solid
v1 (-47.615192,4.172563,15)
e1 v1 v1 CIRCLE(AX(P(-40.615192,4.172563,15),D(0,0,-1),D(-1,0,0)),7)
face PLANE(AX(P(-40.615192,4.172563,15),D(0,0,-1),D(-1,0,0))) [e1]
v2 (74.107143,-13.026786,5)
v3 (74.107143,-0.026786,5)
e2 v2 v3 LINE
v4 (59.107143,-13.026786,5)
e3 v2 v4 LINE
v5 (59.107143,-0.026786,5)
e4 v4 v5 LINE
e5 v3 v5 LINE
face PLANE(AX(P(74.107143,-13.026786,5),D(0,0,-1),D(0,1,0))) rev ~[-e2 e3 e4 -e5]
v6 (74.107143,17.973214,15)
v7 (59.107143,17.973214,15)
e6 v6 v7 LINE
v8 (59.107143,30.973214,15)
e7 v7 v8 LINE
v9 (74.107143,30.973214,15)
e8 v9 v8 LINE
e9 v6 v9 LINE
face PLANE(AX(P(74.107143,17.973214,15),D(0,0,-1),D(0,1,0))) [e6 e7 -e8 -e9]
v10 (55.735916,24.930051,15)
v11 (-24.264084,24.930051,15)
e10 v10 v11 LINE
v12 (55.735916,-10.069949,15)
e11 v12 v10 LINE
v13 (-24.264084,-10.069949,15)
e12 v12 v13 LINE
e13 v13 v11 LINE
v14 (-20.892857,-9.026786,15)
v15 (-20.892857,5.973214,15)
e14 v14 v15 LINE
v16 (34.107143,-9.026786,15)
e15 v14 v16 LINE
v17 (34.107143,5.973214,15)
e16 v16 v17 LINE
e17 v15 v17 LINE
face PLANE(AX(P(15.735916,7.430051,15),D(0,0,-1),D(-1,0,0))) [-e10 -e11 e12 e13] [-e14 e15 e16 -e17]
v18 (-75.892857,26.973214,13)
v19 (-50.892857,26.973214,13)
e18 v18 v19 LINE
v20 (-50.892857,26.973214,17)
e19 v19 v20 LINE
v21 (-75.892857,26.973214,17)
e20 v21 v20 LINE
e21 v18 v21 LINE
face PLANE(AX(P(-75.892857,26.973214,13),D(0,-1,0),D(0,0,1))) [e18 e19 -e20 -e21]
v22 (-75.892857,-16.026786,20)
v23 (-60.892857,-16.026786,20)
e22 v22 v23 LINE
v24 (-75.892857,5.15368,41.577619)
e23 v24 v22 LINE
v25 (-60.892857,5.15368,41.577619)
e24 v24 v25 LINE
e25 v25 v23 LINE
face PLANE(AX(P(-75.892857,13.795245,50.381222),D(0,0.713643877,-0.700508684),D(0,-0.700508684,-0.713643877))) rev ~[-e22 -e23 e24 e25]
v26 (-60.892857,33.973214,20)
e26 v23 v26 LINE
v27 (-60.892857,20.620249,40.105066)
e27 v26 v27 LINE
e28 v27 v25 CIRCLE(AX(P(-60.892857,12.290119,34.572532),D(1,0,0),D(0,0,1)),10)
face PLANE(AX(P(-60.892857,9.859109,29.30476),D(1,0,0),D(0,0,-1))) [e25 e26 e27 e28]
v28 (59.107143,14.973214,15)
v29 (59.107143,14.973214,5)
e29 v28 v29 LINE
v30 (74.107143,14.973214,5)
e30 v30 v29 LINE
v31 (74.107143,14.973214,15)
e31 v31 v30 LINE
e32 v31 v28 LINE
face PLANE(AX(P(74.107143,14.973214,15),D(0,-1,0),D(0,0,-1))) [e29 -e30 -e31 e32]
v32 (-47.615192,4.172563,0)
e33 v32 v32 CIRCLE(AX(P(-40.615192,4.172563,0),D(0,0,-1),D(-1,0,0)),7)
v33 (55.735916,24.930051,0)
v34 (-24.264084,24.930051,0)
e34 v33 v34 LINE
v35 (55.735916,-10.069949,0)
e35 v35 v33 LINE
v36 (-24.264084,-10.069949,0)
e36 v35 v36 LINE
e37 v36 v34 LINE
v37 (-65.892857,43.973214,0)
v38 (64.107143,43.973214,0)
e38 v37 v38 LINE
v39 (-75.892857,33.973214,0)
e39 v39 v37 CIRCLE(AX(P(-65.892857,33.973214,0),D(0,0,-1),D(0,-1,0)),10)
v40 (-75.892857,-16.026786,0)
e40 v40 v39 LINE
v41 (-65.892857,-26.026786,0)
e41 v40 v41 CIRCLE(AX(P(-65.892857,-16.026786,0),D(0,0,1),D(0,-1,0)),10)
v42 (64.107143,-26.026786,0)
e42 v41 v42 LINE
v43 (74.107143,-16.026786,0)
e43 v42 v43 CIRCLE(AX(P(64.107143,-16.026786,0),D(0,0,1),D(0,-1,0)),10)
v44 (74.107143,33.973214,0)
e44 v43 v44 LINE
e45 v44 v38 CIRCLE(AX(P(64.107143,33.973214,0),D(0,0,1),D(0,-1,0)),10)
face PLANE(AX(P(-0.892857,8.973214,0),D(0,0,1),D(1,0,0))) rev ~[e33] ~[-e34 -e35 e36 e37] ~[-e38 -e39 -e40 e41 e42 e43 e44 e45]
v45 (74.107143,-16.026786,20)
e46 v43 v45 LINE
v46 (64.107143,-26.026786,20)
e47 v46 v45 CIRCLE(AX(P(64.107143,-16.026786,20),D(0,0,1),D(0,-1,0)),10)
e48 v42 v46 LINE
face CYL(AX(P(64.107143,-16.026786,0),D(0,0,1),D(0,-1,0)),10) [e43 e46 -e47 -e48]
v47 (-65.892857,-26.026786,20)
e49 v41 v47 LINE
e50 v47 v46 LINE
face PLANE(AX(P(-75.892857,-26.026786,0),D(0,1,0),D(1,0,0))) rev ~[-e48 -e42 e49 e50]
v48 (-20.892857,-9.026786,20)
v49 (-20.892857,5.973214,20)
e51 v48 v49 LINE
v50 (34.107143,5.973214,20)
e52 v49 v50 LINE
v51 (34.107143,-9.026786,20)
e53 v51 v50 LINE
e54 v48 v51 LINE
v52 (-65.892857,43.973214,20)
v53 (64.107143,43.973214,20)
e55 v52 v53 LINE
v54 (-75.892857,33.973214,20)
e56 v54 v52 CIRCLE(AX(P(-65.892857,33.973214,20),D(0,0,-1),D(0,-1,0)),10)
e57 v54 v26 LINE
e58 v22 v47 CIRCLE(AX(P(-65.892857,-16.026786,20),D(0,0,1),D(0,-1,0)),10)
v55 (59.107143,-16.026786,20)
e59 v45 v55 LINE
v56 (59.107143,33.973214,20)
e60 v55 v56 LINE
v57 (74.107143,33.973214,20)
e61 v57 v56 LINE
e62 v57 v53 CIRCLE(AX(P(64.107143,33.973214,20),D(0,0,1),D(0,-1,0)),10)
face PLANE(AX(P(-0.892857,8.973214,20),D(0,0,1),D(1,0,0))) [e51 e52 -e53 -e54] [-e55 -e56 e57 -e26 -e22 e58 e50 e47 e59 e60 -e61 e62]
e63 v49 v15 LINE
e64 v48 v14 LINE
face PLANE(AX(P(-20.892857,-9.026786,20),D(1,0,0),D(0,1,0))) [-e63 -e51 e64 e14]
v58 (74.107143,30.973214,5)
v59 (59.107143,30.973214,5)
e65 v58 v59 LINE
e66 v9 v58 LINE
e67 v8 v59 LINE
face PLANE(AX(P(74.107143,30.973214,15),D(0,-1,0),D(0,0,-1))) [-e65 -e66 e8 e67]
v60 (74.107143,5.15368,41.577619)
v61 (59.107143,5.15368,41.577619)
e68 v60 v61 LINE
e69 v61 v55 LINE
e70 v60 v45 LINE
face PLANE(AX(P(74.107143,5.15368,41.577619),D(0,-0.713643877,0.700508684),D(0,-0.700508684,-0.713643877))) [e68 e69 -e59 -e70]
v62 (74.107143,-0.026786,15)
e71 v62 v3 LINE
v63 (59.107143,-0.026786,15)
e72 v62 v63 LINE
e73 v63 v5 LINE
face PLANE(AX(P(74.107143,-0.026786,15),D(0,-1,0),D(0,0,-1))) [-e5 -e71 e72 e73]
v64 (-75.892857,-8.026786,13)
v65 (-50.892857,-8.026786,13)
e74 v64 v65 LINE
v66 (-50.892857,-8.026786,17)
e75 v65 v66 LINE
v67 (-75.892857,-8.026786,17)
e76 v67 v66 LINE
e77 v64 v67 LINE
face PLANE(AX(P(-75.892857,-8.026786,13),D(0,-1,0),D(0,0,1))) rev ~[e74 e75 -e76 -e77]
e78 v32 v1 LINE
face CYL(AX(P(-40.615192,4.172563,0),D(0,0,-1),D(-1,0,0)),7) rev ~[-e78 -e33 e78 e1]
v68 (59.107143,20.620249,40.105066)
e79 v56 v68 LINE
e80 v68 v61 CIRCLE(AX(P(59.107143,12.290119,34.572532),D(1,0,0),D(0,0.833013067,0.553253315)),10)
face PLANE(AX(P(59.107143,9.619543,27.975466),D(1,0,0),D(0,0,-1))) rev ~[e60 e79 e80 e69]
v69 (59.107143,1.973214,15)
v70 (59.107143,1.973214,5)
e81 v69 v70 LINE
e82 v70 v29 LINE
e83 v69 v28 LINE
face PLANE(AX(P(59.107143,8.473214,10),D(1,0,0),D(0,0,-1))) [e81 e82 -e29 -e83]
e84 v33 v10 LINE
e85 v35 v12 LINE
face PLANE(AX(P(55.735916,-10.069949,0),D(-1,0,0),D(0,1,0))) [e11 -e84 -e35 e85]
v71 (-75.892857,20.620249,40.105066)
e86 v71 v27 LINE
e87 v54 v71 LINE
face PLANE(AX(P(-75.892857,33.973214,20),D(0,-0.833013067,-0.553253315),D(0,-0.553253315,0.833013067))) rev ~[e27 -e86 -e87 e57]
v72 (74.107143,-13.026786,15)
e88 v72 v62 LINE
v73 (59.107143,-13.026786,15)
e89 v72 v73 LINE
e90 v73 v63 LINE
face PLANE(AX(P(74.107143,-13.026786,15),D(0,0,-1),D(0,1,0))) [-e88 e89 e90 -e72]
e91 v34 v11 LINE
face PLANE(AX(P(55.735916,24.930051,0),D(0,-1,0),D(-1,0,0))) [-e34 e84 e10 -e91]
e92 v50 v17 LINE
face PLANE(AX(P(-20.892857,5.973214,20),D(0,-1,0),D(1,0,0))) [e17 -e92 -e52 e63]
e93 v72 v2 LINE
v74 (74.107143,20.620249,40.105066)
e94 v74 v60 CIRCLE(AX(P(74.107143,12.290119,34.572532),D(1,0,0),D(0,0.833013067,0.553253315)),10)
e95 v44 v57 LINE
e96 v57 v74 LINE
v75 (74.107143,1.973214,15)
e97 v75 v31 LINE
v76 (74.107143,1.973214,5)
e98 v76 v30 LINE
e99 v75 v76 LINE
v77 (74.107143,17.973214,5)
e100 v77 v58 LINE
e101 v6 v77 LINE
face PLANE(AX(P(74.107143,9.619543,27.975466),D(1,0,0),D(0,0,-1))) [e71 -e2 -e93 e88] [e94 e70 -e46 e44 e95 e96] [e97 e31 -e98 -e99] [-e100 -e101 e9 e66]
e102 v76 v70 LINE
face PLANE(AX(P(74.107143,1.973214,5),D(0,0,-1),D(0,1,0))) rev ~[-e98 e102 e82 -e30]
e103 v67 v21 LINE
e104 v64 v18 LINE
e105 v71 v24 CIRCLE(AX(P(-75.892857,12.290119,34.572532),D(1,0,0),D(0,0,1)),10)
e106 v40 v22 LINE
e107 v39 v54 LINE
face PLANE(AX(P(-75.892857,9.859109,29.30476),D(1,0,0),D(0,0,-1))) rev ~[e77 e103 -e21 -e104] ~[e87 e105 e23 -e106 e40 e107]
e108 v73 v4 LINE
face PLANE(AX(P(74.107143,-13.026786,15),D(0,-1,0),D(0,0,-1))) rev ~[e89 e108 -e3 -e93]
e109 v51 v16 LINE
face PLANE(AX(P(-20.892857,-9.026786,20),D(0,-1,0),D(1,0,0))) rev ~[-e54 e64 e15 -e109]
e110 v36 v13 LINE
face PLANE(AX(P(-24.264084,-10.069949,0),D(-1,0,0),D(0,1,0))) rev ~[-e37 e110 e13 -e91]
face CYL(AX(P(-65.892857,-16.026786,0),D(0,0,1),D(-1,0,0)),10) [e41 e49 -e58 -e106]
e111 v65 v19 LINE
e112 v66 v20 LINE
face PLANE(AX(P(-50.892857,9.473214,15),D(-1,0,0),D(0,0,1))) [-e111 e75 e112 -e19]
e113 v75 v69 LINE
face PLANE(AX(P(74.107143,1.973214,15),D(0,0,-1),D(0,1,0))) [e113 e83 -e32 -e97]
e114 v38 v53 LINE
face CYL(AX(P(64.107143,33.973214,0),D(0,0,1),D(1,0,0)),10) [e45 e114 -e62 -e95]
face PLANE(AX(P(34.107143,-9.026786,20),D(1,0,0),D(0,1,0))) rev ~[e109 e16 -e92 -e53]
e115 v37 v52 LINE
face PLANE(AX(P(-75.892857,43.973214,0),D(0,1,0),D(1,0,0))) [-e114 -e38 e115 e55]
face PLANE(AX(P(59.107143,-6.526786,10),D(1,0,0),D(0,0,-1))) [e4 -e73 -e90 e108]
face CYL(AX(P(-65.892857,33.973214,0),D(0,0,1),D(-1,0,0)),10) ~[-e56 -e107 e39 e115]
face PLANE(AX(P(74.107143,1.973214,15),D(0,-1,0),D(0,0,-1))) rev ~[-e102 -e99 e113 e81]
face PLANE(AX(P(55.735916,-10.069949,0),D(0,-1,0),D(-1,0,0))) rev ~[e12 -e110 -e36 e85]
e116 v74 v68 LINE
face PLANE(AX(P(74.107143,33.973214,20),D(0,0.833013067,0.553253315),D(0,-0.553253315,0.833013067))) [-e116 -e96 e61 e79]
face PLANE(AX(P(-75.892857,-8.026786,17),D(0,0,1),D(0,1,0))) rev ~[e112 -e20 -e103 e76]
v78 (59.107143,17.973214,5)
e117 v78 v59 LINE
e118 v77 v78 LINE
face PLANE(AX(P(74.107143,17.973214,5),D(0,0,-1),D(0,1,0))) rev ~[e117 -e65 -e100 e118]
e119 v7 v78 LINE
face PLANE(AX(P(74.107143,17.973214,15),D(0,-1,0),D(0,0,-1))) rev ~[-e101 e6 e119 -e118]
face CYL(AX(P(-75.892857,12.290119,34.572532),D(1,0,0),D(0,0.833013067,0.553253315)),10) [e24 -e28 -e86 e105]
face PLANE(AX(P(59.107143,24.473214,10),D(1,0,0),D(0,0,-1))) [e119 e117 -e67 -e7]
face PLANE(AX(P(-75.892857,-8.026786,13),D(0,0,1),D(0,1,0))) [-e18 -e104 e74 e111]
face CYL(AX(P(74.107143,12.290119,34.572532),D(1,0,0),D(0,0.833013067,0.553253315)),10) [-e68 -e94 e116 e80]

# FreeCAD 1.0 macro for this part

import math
import FreeCAD as App
import Part
import Sketcher
from FreeCAD import Vector


def edges_at(feature, points):
    """Names of the edges that pass closest to the given points."""
    edges = feature.Shape.Edges
    near = lambda p: min(range(len(edges)), key=lambda i: edges[i].distToShape(Part.Vertex(*p))[0])
    return sorted({f"Edge{near(p) + 1}" for p in points})

doc = App.newDocument("Part")
body = doc.addObject("PartDesign::Body", "Body")

sketch1 = doc.addObject("Sketcher::SketchObject", "Sketch")
body.addObject(sketch1)
sketch1.AttachmentSupport = (doc.XY_Plane, [""])
sketch1.MapMode = "FlatFace"
sketch1.addGeometry(Part.LineSegment(Vector(-76, 44, 0), Vector(-76, -26, 0)), False)
sketch1.addGeometry(Part.LineSegment(Vector(-76, -26, 0), Vector(74, -26, 0)), False)
sketch1.addGeometry(Part.LineSegment(Vector(74, -26, 0), Vector(74, 44, 0)), False)
sketch1.addGeometry(Part.LineSegment(Vector(74, 44, 0), Vector(-76, 44, 0)), False)
sketch1.addConstraint(Sketcher.Constraint("Coincident", 0, 2, 1, 1))
sketch1.addConstraint(Sketcher.Constraint("Coincident", 1, 2, 2, 1))
sketch1.addConstraint(Sketcher.Constraint("Coincident", 2, 2, 3, 1))
sketch1.addConstraint(Sketcher.Constraint("Coincident", 3, 2, 0, 1))
sketch1.addConstraint(Sketcher.Constraint("Vertical", 0))
sketch1.addConstraint(Sketcher.Constraint("Horizontal", 1))
sketch1.addConstraint(Sketcher.Constraint("Vertical", 2))
sketch1.addConstraint(Sketcher.Constraint("Horizontal", 3))
sketch1.addConstraint(Sketcher.Constraint("DistanceX", 1, 1, 1, 2, 150.0))
sketch1.addConstraint(Sketcher.Constraint("DistanceY", 0, 2, 0, 1, 70.0))
sketch1.addConstraint(Sketcher.Constraint("DistanceX", 0, 2, -1, 1, 75.892857))
sketch1.addConstraint(Sketcher.Constraint("DistanceY", 0, 2, -1, 1, 26.026786))
pad1 = doc.addObject("PartDesign::Pad", "Pad")
body.addObject(pad1)
pad1.Profile = sketch1
pad1.Length = 20
doc.recompute()

fillet = doc.addObject("PartDesign::Fillet", "Fillet")
body.addObject(fillet)
fillet.Base = (pad1, edges_at(pad1, [
    (-75.893, 43.973, 10),
    (-75.893, -26.027, 10),
    (74.107, -26.027, 10),
    (74.107, 43.973, 10),
]))
fillet.Radius = 10

sketch2 = doc.addObject("Sketcher::SketchObject", "Sketch001")
body.addObject(sketch2)
sketch2.AttachmentSupport = (doc.XY_Plane, [""])
sketch2.MapMode = "FlatFace"
sketch2.addGeometry(Part.LineSegment(Vector(56, 25, 0), Vector(56, -10, 0)), False)
sketch2.addGeometry(Part.LineSegment(Vector(56, -10, 0), Vector(-24, -10, 0)), False)
sketch2.addGeometry(Part.LineSegment(Vector(-24, -10, 0), Vector(-24, 25, 0)), False)
sketch2.addGeometry(Part.LineSegment(Vector(-24, 25, 0), Vector(56, 25, 0)), False)
sketch2.addConstraint(Sketcher.Constraint("Coincident", 0, 2, 1, 1))
sketch2.addConstraint(Sketcher.Constraint("Coincident", 1, 2, 2, 1))
sketch2.addConstraint(Sketcher.Constraint("Coincident", 2, 2, 3, 1))
sketch2.addConstraint(Sketcher.Constraint("Coincident", 3, 2, 0, 1))
sketch2.addConstraint(Sketcher.Constraint("Vertical", 0))
sketch2.addConstraint(Sketcher.Constraint("Horizontal", 1))
sketch2.addConstraint(Sketcher.Constraint("Vertical", 2))
sketch2.addConstraint(Sketcher.Constraint("Horizontal", 3))
sketch2.addConstraint(Sketcher.Constraint("DistanceX", 1, 2, 1, 1, 80.0))
sketch2.addConstraint(Sketcher.Constraint("DistanceY", 0, 2, 0, 1, 35.0))
sketch2.addConstraint(Sketcher.Constraint("DistanceY", 0, 2, -1, 1, 10.069949))
sketch2.addConstraint(Sketcher.Constraint("DistanceX", -1, 1, 0, 2, 55.735916))
pocket1 = doc.addObject("PartDesign::Pocket", "Pocket")
body.addObject(pocket1)
pocket1.Profile = sketch2
pocket1.Length = 15
pocket1.Reversed = True

sketch3 = doc.addObject("Sketcher::SketchObject", "Sketch002")
body.addObject(sketch3)
sketch3.AttachmentSupport = (doc.XY_Plane, [""])
sketch3.MapMode = "FlatFace"
sketch3.addGeometry(Part.Circle(Vector(-41, 4, 0), Vector(0, 0, 1), 7), False)
sketch3.addConstraint(Sketcher.Constraint("Diameter", 0, 14.0))
sketch3.addConstraint(Sketcher.Constraint("DistanceX", 0, 3, -1, 1, 40.615192))
sketch3.addConstraint(Sketcher.Constraint("DistanceY", -1, 1, 0, 3, 4.172563))
pocket2 = doc.addObject("PartDesign::Pocket", "Pocket001")
body.addObject(pocket2)
pocket2.Profile = sketch3
pocket2.Length = 15
pocket2.Reversed = True

sketch4 = doc.addObject("Sketcher::SketchObject", "Sketch003")
body.addObject(sketch4)
sketch4.AttachmentSupport = (doc.YZ_Plane, [""])
sketch4.MapMode = "FlatFace"
sketch4.AttachmentOffset = App.Placement(Vector(0, 0, 74.107143), App.Rotation())
sketch4.addGeometry(Part.LineSegment(Vector(31, 15, 0), Vector(18, 15, 0)), False)
sketch4.addGeometry(Part.LineSegment(Vector(18, 15, 0), Vector(18, 5, 0)), False)
sketch4.addGeometry(Part.LineSegment(Vector(18, 5, 0), Vector(31, 5, 0)), False)
sketch4.addGeometry(Part.LineSegment(Vector(31, 5, 0), Vector(31, 15, 0)), False)
sketch4.addGeometry(Part.LineSegment(Vector(15, 15, 0), Vector(2, 15, 0)), False)
sketch4.addGeometry(Part.LineSegment(Vector(2, 15, 0), Vector(2, 5, 0)), False)
sketch4.addGeometry(Part.LineSegment(Vector(2, 5, 0), Vector(15, 5, 0)), False)
sketch4.addGeometry(Part.LineSegment(Vector(15, 5, 0), Vector(15, 15, 0)), False)
sketch4.addGeometry(Part.LineSegment(Vector(0, 15, 0), Vector(-13, 15, 0)), False)
sketch4.addGeometry(Part.LineSegment(Vector(-13, 15, 0), Vector(-13, 5, 0)), False)
sketch4.addGeometry(Part.LineSegment(Vector(-13, 5, 0), Vector(0, 5, 0)), False)
sketch4.addGeometry(Part.LineSegment(Vector(0, 5, 0), Vector(0, 15, 0)), False)
sketch4.addConstraint(Sketcher.Constraint("Coincident", 0, 2, 1, 1))
sketch4.addConstraint(Sketcher.Constraint("Coincident", 1, 2, 2, 1))
sketch4.addConstraint(Sketcher.Constraint("Coincident", 2, 2, 3, 1))
sketch4.addConstraint(Sketcher.Constraint("Coincident", 3, 2, 0, 1))
sketch4.addConstraint(Sketcher.Constraint("Coincident", 4, 2, 5, 1))
sketch4.addConstraint(Sketcher.Constraint("Coincident", 5, 2, 6, 1))
sketch4.addConstraint(Sketcher.Constraint("Coincident", 6, 2, 7, 1))
sketch4.addConstraint(Sketcher.Constraint("Coincident", 7, 2, 4, 1))
sketch4.addConstraint(Sketcher.Constraint("Coincident", 8, 2, 9, 1))
sketch4.addConstraint(Sketcher.Constraint("Coincident", 9, 2, 10, 1))
sketch4.addConstraint(Sketcher.Constraint("Coincident", 10, 2, 11, 1))
sketch4.addConstraint(Sketcher.Constraint("Coincident", 11, 2, 8, 1))
sketch4.addConstraint(Sketcher.Constraint("Horizontal", 0))
sketch4.addConstraint(Sketcher.Constraint("Vertical", 1))
sketch4.addConstraint(Sketcher.Constraint("Horizontal", 2))
sketch4.addConstraint(Sketcher.Constraint("Vertical", 3))
sketch4.addConstraint(Sketcher.Constraint("Horizontal", 4))
sketch4.addConstraint(Sketcher.Constraint("Vertical", 5))
sketch4.addConstraint(Sketcher.Constraint("Horizontal", 6))
sketch4.addConstraint(Sketcher.Constraint("Vertical", 7))
sketch4.addConstraint(Sketcher.Constraint("Horizontal", 8))
sketch4.addConstraint(Sketcher.Constraint("Vertical", 9))
sketch4.addConstraint(Sketcher.Constraint("Horizontal", 10))
sketch4.addConstraint(Sketcher.Constraint("Vertical", 11))
sketch4.addConstraint(Sketcher.Constraint("Horizontal", 3, 2, 4, 2))
sketch4.addConstraint(Sketcher.Constraint("Horizontal", 2, 2, 5, 2))
sketch4.addConstraint(Sketcher.Constraint("Horizontal", 7, 2, 8, 2))
sketch4.addConstraint(Sketcher.Constraint("Horizontal", 6, 2, 9, 2))
sketch4.addConstraint(Sketcher.Constraint("Equal", 2, 4))
sketch4.addConstraint(Sketcher.Constraint("Equal", 6, 8))
sketch4.addConstraint(Sketcher.Constraint("DistanceX", 0, 2, 0, 1, 13.0))
sketch4.addConstraint(Sketcher.Constraint("DistanceY", 1, 2, 1, 1, 10.0))
sketch4.addConstraint(Sketcher.Constraint("DistanceY", -1, 1, 0, 2, 15.0))
sketch4.addConstraint(Sketcher.Constraint("DistanceX", 4, 2, 0, 2, 16.0))
sketch4.addConstraint(Sketcher.Constraint("DistanceX", 8, 2, 4, 2, 15.0))
sketch4.addConstraint(Sketcher.Constraint("DistanceX", -1, 1, 0, 2, 17.973214))
pocket3 = doc.addObject("PartDesign::Pocket", "Pocket002")
body.addObject(pocket3)
pocket3.Profile = sketch4
pocket3.Length = 15

sketch5 = doc.addObject("Sketcher::SketchObject", "Sketch004")
body.addObject(sketch5)
sketch5.AttachmentSupport = (doc.YZ_Plane, [""])
sketch5.MapMode = "FlatFace"
sketch5.AttachmentOffset = App.Placement(Vector(0, 0, -75.892857), App.Rotation())
sketch5.addGeometry(Part.LineSegment(Vector(27, 13, 0), Vector(-8, 13, 0)), False)
sketch5.addGeometry(Part.LineSegment(Vector(-8, 13, 0), Vector(-8, 17, 0)), False)
sketch5.addGeometry(Part.LineSegment(Vector(-8, 17, 0), Vector(27, 17, 0)), False)
sketch5.addGeometry(Part.LineSegment(Vector(27, 17, 0), Vector(27, 13, 0)), False)
sketch5.addConstraint(Sketcher.Constraint("Coincident", 0, 2, 1, 1))
sketch5.addConstraint(Sketcher.Constraint("Coincident", 1, 2, 2, 1))
sketch5.addConstraint(Sketcher.Constraint("Coincident", 2, 2, 3, 1))
sketch5.addConstraint(Sketcher.Constraint("Coincident", 3, 2, 0, 1))
sketch5.addConstraint(Sketcher.Constraint("Horizontal", 0))
sketch5.addConstraint(Sketcher.Constraint("Vertical", 1))
sketch5.addConstraint(Sketcher.Constraint("Horizontal", 2))
sketch5.addConstraint(Sketcher.Constraint("Vertical", 3))
sketch5.addConstraint(Sketcher.Constraint("DistanceX", 0, 2, 0, 1, 35.0))
sketch5.addConstraint(Sketcher.Constraint("DistanceY", 1, 1, 1, 2, 4.0))
sketch5.addConstraint(Sketcher.Constraint("DistanceY", -1, 1, 0, 2, 13.0))
sketch5.addConstraint(Sketcher.Constraint("DistanceX", 0, 2, -1, 1, 8.026786))
pocket4 = doc.addObject("PartDesign::Pocket", "Pocket003")
body.addObject(pocket4)
pocket4.Profile = sketch5
pocket4.Length = 25
pocket4.Reversed = True

sketch6 = doc.addObject("Sketcher::SketchObject", "Sketch005")
body.addObject(sketch6)
sketch6.AttachmentSupport = (doc.XY_Plane, [""])
sketch6.MapMode = "FlatFace"
sketch6.AttachmentOffset = App.Placement(Vector(0, 0, 20), App.Rotation())
sketch6.addGeometry(Part.LineSegment(Vector(-21, 6, 0), Vector(-21, -9, 0)), False)
sketch6.addGeometry(Part.LineSegment(Vector(-21, -9, 0), Vector(34, -9, 0)), False)
sketch6.addGeometry(Part.LineSegment(Vector(34, -9, 0), Vector(34, 6, 0)), False)
sketch6.addGeometry(Part.LineSegment(Vector(34, 6, 0), Vector(-21, 6, 0)), False)
sketch6.addConstraint(Sketcher.Constraint("Coincident", 0, 2, 1, 1))
sketch6.addConstraint(Sketcher.Constraint("Coincident", 1, 2, 2, 1))
sketch6.addConstraint(Sketcher.Constraint("Coincident", 2, 2, 3, 1))
sketch6.addConstraint(Sketcher.Constraint("Coincident", 3, 2, 0, 1))
sketch6.addConstraint(Sketcher.Constraint("Vertical", 0))
sketch6.addConstraint(Sketcher.Constraint("Horizontal", 1))
sketch6.addConstraint(Sketcher.Constraint("Vertical", 2))
sketch6.addConstraint(Sketcher.Constraint("Horizontal", 3))
sketch6.addConstraint(Sketcher.Constraint("DistanceX", 1, 1, 1, 2, 55.0))
sketch6.addConstraint(Sketcher.Constraint("DistanceY", 0, 2, 0, 1, 15.0))
sketch6.addConstraint(Sketcher.Constraint("DistanceX", 0, 2, -1, 1, 20.892857))
sketch6.addConstraint(Sketcher.Constraint("DistanceY", 0, 2, -1, 1, 9.026786))
pocket5 = doc.addObject("PartDesign::Pocket", "Pocket004")
body.addObject(pocket5)
pocket5.Profile = sketch6
pocket5.Length = 5

sketch7 = doc.addObject("Sketcher::SketchObject", "Sketch006")
body.addObject(sketch7)
sketch7.AttachmentSupport = (doc.YZ_Plane, [""])
sketch7.MapMode = "FlatFace"
sketch7.AttachmentOffset = App.Placement(Vector(0, 0, -75.892857), App.Rotation())
sketch7.addGeometry(Part.LineSegment(Vector(14, 50, 0), Vector(34, 20, 0)), False)
sketch7.addGeometry(Part.LineSegment(Vector(34, 20, 0), Vector(-16, 20, 0)), False)
sketch7.addGeometry(Part.LineSegment(Vector(-16, 20, 0), Vector(14, 50, 0)), False)
sketch7.addConstraint(Sketcher.Constraint("Coincident", 0, 2, 1, 1))
sketch7.addConstraint(Sketcher.Constraint("Coincident", 1, 2, 2, 1))
sketch7.addConstraint(Sketcher.Constraint("Coincident", 2, 2, 0, 1))
sketch7.addConstraint(Sketcher.Constraint("Horizontal", 1))
sketch7.addConstraint(Sketcher.Constraint("DistanceX", 1, 2, 1, 1, 50.0))
sketch7.addConstraint(Sketcher.Constraint("DistanceY", -1, 1, 0, 2, 20.0))
sketch7.addConstraint(Sketcher.Constraint("DistanceX", 2, 2, 0, 2, 20.177969))
sketch7.addConstraint(Sketcher.Constraint("Distance", 0, 36.471483))
sketch7.addConstraint(Sketcher.Constraint("DistanceX", -1, 1, 0, 2, 33.973214))
pad2 = doc.addObject("PartDesign::Pad", "Pad001")
body.addObject(pad2)
pad2.Profile = sketch7
pad2.Length = 15
doc.recompute()

fillet2 = doc.addObject("PartDesign::Fillet", "Fillet001")
body.addObject(fillet2)
fillet2.Base = (pad2, edges_at(pad2, [(-68.393, 13.795, 50.381)]))
fillet2.Radius = 10

sketch8 = doc.addObject("Sketcher::SketchObject", "Sketch007")
body.addObject(sketch8)
sketch8.AttachmentSupport = (doc.YZ_Plane, [""])
sketch8.MapMode = "FlatFace"
sketch8.AttachmentOffset = App.Placement(Vector(0, 0, 74.107143), App.Rotation())
sketch8.addGeometry(Part.LineSegment(Vector(34, 20, 0), Vector(21, 40, 0)), False)
sketch8.addGeometry(Part.ArcOfCircle(Part.Circle(Vector(12, 35, 0), Vector(0, 0, 1), 10), math.radians(34), math.radians(136)), False)
sketch8.addGeometry(Part.LineSegment(Vector(5, 42, 0), Vector(-16, 20, 0)), False)
sketch8.addGeometry(Part.LineSegment(Vector(-16, 20, 0), Vector(34, 20, 0)), False)
sketch8.addConstraint(Sketcher.Constraint("Tangent", 0, 2, 1, 1))
sketch8.addConstraint(Sketcher.Constraint("Tangent", 1, 2, 2, 1))
sketch8.addConstraint(Sketcher.Constraint("Coincident", 2, 2, 3, 1))
sketch8.addConstraint(Sketcher.Constraint("Coincident", 3, 2, 0, 1))
sketch8.addConstraint(Sketcher.Constraint("Horizontal", 3))
sketch8.addConstraint(Sketcher.Constraint("Radius", 1, 10.0))
sketch8.addConstraint(Sketcher.Constraint("DistanceX", 3, 1, 3, 2, 50.0))
sketch8.addConstraint(Sketcher.Constraint("DistanceY", -1, 1, 2, 2, 20.0))
sketch8.addConstraint(Sketcher.Constraint("DistanceX", -1, 1, 1, 3, 12.290119))
sketch8.addConstraint(Sketcher.Constraint("DistanceX", -1, 1, 0, 2, 20.620249))
sketch8.addConstraint(Sketcher.Constraint("DistanceX", -1, 1, 1, 2, 5.15368))
pad3 = doc.addObject("PartDesign::Pad", "Pad002")
body.addObject(pad3)
pad3.Profile = sketch8
pad3.Length = 15
pad3.Reversed = True

doc.recompute()
